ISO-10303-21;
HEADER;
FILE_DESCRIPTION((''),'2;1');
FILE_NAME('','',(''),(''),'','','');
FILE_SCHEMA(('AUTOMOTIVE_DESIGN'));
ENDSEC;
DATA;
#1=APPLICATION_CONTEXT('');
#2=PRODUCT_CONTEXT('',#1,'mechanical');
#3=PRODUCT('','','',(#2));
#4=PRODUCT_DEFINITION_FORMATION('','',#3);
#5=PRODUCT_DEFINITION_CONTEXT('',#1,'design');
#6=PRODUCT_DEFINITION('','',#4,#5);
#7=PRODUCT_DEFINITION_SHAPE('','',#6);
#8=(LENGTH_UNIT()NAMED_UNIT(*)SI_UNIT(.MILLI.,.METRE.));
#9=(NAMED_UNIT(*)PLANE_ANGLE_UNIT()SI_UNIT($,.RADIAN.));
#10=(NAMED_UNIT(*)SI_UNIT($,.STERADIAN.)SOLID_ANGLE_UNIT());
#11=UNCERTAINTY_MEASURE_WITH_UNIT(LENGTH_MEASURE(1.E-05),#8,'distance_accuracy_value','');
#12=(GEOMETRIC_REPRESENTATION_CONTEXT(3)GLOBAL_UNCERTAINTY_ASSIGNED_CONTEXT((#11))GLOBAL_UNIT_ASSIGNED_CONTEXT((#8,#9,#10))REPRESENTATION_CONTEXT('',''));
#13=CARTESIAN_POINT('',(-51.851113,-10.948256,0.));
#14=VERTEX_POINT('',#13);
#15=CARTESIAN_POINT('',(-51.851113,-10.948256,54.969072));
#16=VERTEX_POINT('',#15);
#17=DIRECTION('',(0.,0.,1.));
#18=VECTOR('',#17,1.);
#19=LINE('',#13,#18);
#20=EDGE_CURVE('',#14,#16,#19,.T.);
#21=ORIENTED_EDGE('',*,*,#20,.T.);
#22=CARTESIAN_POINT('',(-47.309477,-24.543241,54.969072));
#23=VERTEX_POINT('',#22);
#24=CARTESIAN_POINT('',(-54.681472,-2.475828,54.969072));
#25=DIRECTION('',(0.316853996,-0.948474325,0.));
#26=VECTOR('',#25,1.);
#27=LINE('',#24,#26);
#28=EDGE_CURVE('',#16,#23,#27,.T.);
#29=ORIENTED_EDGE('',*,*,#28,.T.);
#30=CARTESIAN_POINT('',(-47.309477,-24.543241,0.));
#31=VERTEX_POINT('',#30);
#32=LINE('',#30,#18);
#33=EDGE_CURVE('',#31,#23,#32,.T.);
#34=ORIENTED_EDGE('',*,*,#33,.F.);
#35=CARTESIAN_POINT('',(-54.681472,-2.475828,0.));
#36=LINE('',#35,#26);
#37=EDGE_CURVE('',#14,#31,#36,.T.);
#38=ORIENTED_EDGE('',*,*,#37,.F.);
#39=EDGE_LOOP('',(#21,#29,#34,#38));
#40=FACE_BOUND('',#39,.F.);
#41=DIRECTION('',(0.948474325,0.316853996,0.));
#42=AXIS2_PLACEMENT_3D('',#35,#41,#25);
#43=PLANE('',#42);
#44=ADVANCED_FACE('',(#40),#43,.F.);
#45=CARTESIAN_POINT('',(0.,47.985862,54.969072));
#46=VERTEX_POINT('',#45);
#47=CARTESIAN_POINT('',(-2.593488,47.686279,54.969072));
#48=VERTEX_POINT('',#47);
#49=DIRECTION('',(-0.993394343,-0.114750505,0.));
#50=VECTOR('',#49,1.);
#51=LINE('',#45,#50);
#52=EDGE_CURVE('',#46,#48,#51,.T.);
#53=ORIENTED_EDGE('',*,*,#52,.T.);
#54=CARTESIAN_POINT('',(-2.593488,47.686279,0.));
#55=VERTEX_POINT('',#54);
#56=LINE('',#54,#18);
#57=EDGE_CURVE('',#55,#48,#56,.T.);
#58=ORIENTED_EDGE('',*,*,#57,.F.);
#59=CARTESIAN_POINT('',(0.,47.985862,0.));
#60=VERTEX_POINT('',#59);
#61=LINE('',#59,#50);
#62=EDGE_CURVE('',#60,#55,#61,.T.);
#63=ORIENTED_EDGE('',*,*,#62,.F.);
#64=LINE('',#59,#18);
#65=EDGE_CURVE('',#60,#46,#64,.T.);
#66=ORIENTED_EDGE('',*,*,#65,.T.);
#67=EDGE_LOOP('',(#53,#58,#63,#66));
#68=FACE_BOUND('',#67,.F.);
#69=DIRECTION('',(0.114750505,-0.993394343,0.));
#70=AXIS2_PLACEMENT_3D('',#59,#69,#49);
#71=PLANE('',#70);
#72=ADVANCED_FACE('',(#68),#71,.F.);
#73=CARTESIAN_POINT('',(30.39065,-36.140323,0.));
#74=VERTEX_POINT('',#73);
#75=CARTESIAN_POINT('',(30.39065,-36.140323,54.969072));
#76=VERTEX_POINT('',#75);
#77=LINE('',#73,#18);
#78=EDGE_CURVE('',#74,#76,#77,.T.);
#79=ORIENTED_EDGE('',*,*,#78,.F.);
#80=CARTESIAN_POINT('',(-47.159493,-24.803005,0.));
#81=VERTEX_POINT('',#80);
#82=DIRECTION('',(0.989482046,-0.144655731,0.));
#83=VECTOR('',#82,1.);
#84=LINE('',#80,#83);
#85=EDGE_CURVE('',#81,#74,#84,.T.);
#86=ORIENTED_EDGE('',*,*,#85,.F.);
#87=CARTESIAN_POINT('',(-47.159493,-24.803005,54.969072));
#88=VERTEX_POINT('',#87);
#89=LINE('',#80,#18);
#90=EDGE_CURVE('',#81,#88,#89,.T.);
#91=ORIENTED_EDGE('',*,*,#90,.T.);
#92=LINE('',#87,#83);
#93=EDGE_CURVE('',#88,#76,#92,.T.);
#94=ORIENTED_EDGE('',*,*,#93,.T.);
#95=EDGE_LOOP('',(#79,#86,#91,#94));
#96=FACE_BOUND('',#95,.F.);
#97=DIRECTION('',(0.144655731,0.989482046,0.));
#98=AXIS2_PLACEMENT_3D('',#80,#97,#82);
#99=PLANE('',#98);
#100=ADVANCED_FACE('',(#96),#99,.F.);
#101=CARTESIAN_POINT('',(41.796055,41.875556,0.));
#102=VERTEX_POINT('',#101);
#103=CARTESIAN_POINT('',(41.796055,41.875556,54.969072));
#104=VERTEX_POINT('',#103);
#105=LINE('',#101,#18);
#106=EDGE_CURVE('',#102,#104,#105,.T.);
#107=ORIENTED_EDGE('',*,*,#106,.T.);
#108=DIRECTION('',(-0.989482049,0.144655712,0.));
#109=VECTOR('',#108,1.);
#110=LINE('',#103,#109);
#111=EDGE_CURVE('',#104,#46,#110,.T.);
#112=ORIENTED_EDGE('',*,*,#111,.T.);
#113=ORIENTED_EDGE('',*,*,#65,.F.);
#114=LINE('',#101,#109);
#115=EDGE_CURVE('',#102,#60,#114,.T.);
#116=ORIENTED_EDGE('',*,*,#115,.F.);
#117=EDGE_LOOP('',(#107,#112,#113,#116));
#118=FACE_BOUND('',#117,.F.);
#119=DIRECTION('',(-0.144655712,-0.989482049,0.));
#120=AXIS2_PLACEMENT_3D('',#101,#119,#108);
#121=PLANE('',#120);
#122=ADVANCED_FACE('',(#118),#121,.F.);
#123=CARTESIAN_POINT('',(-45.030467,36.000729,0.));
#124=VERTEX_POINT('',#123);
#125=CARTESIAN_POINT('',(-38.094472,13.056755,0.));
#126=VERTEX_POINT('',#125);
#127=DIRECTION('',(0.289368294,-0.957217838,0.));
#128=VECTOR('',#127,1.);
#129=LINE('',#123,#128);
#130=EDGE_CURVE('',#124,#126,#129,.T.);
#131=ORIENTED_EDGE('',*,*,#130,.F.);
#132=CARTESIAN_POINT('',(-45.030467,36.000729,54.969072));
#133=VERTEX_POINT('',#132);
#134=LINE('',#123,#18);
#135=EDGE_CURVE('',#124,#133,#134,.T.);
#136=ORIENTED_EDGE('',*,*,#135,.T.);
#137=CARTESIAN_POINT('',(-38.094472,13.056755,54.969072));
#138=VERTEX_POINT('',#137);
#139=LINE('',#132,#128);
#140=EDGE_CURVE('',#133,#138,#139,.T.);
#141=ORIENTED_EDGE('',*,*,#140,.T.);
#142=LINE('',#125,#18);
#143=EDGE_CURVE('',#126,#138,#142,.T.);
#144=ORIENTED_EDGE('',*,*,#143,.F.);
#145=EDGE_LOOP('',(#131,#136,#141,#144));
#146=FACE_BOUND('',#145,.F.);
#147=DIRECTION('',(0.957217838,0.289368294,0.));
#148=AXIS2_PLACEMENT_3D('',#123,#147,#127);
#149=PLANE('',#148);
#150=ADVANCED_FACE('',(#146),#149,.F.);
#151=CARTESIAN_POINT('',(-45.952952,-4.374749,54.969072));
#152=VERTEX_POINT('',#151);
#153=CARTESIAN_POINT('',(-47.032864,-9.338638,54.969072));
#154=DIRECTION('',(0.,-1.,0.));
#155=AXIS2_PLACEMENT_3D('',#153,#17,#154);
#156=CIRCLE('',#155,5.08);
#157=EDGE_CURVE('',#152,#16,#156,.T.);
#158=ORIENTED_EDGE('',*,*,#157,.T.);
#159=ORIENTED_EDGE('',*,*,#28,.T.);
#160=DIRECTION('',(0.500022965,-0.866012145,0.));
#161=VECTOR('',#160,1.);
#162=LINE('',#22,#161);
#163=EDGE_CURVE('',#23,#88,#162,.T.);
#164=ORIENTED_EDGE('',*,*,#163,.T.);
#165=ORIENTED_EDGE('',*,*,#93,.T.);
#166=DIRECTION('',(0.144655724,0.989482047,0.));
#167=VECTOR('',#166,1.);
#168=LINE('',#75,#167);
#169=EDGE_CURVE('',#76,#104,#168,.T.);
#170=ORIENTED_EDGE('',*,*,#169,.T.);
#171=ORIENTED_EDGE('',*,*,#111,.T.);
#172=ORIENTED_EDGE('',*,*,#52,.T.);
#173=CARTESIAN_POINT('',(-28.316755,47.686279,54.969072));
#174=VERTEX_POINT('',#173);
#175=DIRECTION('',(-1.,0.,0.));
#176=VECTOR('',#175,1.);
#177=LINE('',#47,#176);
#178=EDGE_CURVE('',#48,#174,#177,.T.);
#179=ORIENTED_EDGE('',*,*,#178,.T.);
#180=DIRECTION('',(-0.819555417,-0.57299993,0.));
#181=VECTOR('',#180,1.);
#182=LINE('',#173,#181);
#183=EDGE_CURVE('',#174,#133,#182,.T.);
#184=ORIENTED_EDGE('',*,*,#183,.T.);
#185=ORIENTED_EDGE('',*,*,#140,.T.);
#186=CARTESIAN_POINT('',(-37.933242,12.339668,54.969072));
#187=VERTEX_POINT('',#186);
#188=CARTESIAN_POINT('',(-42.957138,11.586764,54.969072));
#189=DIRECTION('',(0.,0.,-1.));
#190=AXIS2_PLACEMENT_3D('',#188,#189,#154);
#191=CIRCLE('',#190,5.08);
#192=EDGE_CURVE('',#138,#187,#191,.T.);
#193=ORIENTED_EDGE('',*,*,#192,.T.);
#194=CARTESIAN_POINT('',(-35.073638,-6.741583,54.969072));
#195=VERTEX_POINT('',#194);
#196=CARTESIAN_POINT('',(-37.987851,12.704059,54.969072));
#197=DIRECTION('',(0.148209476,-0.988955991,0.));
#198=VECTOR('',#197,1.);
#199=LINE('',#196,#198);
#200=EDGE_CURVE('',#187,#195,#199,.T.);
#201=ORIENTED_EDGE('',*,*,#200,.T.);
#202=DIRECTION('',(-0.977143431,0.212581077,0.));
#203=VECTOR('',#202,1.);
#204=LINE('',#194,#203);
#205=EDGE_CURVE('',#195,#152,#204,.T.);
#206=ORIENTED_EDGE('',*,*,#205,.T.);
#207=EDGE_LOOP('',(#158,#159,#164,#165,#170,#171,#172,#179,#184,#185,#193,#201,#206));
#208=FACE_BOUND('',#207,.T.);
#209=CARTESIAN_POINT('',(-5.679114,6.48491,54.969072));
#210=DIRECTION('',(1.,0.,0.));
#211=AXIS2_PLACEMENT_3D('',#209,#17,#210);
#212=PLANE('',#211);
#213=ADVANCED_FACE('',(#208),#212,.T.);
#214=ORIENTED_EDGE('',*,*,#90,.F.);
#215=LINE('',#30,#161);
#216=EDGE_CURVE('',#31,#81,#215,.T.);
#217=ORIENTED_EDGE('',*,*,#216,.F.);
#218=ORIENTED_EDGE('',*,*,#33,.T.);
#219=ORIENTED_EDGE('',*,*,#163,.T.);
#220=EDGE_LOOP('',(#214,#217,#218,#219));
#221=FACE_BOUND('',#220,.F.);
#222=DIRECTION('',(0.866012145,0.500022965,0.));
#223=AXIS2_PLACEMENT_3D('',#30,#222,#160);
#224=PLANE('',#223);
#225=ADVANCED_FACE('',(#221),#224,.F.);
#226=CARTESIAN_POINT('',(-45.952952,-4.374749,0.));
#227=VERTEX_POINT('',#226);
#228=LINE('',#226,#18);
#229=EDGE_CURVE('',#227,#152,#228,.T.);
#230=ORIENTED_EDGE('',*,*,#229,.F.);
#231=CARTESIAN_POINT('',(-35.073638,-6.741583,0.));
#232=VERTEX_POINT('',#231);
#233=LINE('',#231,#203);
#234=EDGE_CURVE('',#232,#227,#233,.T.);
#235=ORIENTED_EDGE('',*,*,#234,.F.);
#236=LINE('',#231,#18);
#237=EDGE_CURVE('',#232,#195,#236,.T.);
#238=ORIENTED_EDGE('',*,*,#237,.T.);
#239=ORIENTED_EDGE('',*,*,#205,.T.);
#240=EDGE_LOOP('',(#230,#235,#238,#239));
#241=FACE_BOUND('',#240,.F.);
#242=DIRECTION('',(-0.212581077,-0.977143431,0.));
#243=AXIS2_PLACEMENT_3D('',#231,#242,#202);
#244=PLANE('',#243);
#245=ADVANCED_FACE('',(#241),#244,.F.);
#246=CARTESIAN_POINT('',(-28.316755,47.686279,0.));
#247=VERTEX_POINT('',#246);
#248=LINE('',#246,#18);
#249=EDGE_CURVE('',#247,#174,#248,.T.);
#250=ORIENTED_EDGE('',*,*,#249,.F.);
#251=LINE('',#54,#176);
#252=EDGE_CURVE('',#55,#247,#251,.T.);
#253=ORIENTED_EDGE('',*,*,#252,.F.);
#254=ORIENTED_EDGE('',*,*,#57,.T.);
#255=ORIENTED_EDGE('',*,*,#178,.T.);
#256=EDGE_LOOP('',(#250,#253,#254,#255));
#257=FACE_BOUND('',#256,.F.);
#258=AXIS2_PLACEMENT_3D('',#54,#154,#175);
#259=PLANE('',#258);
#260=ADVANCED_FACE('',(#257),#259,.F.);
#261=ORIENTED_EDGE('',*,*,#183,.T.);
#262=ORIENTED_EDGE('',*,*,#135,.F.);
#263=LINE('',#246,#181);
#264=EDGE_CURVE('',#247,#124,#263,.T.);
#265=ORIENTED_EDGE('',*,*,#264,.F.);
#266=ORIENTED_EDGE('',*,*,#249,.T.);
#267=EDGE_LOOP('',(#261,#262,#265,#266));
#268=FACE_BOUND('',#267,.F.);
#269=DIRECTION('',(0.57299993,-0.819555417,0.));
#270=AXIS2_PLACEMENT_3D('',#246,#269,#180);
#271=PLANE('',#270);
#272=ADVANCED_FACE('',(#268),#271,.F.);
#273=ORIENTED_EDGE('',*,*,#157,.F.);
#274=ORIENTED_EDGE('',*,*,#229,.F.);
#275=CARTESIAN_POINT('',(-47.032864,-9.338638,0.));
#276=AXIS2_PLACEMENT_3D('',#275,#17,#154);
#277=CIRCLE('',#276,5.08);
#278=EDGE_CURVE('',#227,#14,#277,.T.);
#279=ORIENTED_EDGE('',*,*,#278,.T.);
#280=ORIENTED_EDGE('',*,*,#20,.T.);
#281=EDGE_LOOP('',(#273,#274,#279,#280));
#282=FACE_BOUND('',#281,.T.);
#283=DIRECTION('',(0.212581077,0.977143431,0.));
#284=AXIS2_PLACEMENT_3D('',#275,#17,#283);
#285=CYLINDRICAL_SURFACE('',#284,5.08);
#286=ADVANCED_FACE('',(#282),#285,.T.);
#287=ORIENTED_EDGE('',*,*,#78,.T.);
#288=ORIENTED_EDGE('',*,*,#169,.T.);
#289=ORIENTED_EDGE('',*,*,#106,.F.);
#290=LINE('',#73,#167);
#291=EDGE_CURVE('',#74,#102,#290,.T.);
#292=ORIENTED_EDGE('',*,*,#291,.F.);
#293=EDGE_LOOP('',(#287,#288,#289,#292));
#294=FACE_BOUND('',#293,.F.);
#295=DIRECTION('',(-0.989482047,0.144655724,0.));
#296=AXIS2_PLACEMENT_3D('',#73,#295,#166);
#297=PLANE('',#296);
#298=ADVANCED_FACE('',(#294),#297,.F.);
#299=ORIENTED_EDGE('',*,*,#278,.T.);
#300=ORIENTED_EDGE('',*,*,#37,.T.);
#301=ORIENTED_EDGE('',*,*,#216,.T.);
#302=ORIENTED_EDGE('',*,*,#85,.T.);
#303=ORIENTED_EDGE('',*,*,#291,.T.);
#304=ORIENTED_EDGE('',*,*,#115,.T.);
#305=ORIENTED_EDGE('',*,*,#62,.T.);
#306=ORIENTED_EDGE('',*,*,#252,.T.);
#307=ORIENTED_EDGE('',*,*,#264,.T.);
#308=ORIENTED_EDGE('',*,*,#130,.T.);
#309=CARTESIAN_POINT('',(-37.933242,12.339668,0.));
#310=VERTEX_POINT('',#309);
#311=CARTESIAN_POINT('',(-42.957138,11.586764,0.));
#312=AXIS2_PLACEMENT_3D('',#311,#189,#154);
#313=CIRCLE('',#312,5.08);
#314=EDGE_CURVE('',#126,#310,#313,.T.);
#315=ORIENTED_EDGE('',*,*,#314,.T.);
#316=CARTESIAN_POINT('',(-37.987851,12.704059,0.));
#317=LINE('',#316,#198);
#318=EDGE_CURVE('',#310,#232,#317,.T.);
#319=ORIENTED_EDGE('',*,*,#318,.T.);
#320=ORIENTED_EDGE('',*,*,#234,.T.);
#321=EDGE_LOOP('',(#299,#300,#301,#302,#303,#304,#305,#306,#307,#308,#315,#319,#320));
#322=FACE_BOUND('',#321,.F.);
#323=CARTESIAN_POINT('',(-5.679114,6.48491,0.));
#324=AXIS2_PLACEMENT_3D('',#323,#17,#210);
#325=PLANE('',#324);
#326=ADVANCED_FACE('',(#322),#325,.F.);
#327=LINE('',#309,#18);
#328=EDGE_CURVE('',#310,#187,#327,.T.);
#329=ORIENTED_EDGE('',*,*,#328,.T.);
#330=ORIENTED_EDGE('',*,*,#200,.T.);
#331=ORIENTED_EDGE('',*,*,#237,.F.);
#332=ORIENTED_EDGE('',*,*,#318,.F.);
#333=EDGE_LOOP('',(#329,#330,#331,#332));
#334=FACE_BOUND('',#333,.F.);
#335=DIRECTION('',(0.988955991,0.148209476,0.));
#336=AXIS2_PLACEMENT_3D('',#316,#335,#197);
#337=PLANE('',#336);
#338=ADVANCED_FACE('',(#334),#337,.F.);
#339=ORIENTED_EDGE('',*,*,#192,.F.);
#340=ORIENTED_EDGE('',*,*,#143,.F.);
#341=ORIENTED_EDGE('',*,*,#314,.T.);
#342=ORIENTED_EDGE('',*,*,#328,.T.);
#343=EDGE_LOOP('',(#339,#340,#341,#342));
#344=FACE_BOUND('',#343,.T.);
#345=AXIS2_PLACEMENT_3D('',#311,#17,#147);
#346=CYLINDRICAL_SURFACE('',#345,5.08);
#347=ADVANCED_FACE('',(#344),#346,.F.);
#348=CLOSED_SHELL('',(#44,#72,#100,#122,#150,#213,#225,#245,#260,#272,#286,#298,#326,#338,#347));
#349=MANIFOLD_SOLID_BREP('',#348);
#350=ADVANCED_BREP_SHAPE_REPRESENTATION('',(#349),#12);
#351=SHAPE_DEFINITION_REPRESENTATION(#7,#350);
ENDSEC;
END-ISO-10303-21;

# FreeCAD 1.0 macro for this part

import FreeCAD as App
import Part
import Sketcher


def edges_at(feature, points):
    """Names of the edges that pass closest to the given points."""
    edges = feature.Shape.Edges
    near = lambda p: min(range(len(edges)), key=lambda i: edges[i].distToShape(Part.Vertex(*p))[0])
    return sorted({f"Edge{near(p) + 1}" for p in points})


def add_polygon(sketch, points):
    """Adds a closed chain of lines whose ends are joined by coincident constraints."""
    first, n = sketch.GeometryCount, len(points)
    for a, b in zip(points, points[1:] + points[:1]):
        sketch.addGeometry(Part.LineSegment(App.Vector(*a, 0), App.Vector(*b, 0)), False)
    for i in range(n):
        sketch.addConstraint(Sketcher.Constraint("Coincident", first + i, 2, first + (i + 1) % n, 1))

doc = App.newDocument("Part")
params = doc.addObject("Spreadsheet::Sheet", "Params")
for row, (alias, value) in enumerate([
    ("pad1_length", "54.969072 mm"),
    ("fillet_radius", "0.2 in"),
], start=1):
    params.set(f"A{row}", alias)
    params.set(f"B{row}", "=" + value)
    params.setAlias(f"B{row}", alias)

body = doc.addObject("PartDesign::Body", "Body")

# Sketch on XY plane
sketch1 = body.newObject("Sketcher::SketchObject", "Sketch")
sketch1.AttachmentSupport = (doc.getObject("XY_Plane"), [""])
sketch1.MapMode = "FlatFace"
add_polygon(sketch1, [(-47.31, -24.54), (-47.16, -24.8), (30.39, -36.14), (41.8, 41.88), (0, 47.99), (-2.59, 47.69), (-28.32, 47.69), (-45.03, 36), (-37.99, 12.7), (-35.07, -6.74), (-54.68, -2.48)])  # lines 0-10
sketch1.addConstraint(Sketcher.Constraint("Horizontal", 5))
sketch1.addConstraint(Sketcher.Constraint("PointOnObject", 3, 2, -2))
sketch1.addConstraint(Sketcher.Constraint("Perpendicular", 1, 2))
sketch1.addConstraint(Sketcher.Constraint("Perpendicular", 2, 3))
sketch1.addConstraint(Sketcher.Constraint("Distance", 8, 19.662798))
sketch1.addConstraint(Sketcher.Constraint("DistanceY", 10, 2, 7, 2, 37.2473))
sketch1.addConstraint(Sketcher.Constraint("Distance", 2, 78.845169))
sketch1.addConstraint(Sketcher.Constraint("Distance", 10, 23.266221))
sketch1.addConstraint(Sketcher.Constraint("DistanceX", 5, 2, 5, 1, 25.723267))
sketch1.addConstraint(Sketcher.Constraint("DistanceX", -1, 1, 1, 2, 30.39065))
sketch1.addConstraint(Sketcher.Constraint("DistanceY", -1, 1, 3, 2, 47.985862))
sketch1.addConstraint(Sketcher.Constraint("DistanceY", -1, 1, 4, 2, 47.686279))
sketch1.addConstraint(Sketcher.Constraint("DistanceY", -1, 1, 6, 2, 36.000729))
sketch1.addConstraint(Sketcher.Constraint("DistanceX", 7, 2, -1, 1, 37.987851))
sketch1.addConstraint(Sketcher.Constraint("DistanceY", -1, 1, 7, 2, 12.704059))
sketch1.addConstraint(Sketcher.Constraint("DistanceX", 8, 2, -1, 1, 35.073638))
sketch1.addConstraint(Sketcher.Constraint("DistanceY", 1, 2, 0, 2, 11.337318))
sketch1.addConstraint(Sketcher.Constraint("DistanceY", 1, 2, 2, 2, 78.015879))
sketch1.addConstraint(Sketcher.Constraint("DistanceX", 4, 2, 1, 2, 32.984138))
sketch1.addConstraint(Sketcher.Constraint("DistanceX", 6, 2, 4, 2, 42.436979))
sketch1.addConstraint(Sketcher.Constraint("DistanceX", 9, 2, 7, 2, 16.693621))
sketch1.addConstraint(Sketcher.Constraint("DistanceX", 10, 2, 8, 2, 12.235839))
pad1 = body.newObject("PartDesign::Pad", "Pad")
pad1.Profile = sketch1
pad1.setExpression("Length", "Params.pad1_length")
doc.recompute()

fillet = body.newObject("PartDesign::Fillet", "Fillet")
fillet.Base = (pad1, edges_at(pad1, [(-37.988, 12.704, 27.485), (-54.681, -2.476, 27.485)]))
fillet.setExpression("Radius", "Params.fillet_radius")

doc.recompute()
